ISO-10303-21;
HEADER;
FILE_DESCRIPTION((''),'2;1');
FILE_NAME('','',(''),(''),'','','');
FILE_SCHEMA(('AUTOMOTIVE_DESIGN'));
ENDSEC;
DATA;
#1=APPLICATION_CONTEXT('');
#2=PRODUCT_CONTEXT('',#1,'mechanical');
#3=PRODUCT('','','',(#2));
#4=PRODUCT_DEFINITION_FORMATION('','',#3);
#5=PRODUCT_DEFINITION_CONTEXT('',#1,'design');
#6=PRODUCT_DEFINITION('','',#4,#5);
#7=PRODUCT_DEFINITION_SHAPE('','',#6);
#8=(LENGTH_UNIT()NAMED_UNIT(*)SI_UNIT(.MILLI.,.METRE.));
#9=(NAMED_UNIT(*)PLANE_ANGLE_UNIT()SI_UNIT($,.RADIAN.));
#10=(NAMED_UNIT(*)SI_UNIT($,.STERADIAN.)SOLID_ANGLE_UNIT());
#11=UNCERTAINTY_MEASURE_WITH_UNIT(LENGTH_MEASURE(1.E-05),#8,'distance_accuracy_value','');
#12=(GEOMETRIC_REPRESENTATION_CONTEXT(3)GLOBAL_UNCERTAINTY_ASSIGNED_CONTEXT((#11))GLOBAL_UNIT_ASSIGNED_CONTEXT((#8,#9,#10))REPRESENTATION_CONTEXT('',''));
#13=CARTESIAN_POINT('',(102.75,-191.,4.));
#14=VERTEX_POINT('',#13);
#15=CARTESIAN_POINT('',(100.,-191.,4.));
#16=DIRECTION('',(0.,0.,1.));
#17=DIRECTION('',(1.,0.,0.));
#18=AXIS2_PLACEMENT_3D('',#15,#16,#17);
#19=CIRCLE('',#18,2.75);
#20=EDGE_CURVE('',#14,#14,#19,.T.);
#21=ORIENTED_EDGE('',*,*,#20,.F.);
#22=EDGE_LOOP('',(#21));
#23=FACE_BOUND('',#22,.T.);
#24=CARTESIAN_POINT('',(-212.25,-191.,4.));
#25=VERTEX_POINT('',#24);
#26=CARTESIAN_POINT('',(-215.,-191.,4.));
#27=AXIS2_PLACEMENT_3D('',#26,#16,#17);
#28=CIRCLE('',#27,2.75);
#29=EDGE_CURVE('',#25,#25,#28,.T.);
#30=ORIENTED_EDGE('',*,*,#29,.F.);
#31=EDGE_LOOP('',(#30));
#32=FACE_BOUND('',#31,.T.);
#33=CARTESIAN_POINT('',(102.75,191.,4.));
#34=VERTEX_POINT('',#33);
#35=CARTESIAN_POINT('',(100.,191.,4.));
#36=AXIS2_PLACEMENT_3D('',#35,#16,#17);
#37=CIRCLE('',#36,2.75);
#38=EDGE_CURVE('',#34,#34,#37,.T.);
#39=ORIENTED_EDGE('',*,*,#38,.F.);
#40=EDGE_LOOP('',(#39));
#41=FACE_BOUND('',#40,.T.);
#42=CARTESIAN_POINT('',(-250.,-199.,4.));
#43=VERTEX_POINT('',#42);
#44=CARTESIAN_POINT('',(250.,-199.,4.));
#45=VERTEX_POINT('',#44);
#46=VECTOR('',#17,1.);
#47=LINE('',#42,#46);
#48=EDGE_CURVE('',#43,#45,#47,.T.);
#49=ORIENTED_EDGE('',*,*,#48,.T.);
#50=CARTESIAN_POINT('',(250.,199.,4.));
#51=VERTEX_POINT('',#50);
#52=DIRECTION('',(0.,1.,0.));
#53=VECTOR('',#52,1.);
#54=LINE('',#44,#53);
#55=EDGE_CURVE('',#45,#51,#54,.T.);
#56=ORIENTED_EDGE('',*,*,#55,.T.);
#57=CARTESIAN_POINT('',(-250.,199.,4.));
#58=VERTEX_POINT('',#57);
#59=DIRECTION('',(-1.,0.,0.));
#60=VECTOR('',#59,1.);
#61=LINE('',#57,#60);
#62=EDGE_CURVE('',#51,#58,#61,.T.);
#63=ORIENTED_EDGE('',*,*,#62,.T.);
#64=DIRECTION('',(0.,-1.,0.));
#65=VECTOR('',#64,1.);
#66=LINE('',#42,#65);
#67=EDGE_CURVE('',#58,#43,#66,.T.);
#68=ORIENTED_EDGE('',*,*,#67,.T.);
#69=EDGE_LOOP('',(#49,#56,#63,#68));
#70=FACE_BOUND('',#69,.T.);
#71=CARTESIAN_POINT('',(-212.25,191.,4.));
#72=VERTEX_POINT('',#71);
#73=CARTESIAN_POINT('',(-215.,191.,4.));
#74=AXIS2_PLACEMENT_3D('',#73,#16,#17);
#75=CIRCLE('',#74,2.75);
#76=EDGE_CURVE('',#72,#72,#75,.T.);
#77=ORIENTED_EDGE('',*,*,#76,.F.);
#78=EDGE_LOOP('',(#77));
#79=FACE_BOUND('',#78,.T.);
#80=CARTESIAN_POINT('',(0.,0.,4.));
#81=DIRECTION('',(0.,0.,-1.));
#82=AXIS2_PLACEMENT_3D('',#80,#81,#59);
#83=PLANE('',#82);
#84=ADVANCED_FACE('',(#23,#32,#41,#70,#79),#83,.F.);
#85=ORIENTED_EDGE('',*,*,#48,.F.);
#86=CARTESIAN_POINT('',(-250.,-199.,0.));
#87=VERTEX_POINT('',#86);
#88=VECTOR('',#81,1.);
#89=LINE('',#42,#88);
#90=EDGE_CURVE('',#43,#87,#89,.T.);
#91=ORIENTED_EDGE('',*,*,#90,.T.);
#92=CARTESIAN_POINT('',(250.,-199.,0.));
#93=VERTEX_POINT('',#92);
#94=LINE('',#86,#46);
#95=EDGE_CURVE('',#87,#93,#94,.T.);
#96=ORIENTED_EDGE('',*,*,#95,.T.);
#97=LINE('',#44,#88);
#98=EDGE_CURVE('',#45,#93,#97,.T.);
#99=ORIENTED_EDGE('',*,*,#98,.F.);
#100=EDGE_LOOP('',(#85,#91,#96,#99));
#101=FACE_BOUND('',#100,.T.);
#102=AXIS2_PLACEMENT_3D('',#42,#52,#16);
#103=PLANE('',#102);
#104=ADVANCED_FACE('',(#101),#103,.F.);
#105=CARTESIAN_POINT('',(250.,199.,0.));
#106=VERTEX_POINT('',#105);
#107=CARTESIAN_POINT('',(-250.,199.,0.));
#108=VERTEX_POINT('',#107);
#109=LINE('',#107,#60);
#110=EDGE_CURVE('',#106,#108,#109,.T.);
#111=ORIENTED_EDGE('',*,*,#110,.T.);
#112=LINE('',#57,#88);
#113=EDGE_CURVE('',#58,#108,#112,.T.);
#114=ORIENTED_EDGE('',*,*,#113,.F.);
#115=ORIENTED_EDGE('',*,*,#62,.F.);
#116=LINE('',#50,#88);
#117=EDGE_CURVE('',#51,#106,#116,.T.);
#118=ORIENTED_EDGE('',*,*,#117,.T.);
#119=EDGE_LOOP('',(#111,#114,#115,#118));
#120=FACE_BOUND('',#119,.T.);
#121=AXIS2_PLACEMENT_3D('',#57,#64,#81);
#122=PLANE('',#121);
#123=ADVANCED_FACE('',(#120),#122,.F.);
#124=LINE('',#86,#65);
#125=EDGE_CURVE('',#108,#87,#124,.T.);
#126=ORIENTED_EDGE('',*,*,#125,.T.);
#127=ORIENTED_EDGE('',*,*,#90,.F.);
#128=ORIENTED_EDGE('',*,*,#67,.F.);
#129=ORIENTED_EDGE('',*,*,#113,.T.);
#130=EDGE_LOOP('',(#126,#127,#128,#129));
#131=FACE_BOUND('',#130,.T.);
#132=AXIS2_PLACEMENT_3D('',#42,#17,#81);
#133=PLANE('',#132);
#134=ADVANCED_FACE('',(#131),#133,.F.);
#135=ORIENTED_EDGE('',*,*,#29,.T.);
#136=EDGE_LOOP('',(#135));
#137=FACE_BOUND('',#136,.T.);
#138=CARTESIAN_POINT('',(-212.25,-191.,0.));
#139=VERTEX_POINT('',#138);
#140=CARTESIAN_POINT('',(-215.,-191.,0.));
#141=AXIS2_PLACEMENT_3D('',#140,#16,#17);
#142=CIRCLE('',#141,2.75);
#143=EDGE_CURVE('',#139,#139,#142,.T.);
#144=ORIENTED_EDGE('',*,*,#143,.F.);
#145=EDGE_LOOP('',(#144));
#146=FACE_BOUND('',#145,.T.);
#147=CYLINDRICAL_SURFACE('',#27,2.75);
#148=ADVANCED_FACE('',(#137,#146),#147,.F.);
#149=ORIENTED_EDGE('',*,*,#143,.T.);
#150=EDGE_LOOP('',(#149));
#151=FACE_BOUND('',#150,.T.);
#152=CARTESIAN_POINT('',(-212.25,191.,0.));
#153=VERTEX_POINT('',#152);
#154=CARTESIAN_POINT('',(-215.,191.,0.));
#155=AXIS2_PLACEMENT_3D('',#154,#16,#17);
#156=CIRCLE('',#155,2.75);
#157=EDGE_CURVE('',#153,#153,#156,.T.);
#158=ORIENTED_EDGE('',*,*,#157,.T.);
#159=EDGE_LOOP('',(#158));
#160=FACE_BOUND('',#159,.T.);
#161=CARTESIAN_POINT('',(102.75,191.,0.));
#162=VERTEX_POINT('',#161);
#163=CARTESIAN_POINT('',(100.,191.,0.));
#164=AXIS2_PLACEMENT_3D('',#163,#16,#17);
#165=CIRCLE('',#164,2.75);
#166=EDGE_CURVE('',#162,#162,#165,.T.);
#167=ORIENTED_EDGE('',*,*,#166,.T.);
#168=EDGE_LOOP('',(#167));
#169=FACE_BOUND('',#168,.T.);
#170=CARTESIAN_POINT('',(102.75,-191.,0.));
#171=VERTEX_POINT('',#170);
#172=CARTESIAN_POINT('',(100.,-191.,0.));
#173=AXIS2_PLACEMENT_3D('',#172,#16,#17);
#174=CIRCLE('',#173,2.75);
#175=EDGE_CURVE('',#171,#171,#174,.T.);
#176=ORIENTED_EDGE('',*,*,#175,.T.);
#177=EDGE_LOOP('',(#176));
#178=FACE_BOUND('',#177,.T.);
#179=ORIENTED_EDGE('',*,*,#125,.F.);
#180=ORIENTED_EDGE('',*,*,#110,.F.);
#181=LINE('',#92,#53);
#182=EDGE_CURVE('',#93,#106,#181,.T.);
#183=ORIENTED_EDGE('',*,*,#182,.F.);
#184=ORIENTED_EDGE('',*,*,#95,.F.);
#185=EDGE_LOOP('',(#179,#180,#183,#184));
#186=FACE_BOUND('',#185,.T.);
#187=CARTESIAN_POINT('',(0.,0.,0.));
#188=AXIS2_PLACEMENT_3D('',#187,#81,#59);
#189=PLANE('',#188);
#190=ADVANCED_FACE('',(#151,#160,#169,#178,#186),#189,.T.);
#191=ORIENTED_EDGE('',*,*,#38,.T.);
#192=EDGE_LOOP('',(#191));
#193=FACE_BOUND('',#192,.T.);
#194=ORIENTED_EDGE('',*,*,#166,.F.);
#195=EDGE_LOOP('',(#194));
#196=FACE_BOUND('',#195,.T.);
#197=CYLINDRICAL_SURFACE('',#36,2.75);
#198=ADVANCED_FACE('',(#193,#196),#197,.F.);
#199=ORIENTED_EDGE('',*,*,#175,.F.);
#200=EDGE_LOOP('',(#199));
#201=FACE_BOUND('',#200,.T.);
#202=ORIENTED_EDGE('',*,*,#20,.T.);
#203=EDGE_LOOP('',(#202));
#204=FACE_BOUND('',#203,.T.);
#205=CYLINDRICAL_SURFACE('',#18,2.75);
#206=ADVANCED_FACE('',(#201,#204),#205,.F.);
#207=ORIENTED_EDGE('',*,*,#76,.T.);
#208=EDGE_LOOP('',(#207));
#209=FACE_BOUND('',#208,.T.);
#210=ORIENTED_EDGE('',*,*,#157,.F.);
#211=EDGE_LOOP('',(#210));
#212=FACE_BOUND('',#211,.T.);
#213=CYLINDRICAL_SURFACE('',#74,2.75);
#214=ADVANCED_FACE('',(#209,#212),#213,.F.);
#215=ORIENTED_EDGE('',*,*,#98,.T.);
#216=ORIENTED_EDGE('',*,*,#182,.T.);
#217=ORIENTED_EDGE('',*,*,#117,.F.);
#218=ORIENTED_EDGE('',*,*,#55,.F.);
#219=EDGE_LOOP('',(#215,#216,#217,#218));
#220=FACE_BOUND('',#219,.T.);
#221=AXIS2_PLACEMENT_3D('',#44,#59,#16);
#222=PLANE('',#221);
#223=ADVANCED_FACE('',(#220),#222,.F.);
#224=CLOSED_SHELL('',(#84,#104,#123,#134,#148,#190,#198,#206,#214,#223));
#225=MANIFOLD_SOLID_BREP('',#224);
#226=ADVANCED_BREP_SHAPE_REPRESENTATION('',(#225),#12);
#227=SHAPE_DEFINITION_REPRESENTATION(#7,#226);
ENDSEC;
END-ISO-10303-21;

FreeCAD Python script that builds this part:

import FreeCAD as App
import Part
import Sketcher
from FreeCAD import Vector


def add_polygon(sketch, points):
    """Adds a closed chain of lines whose ends are joined by coincident constraints."""
    first, n = sketch.GeometryCount, len(points)
    for a, b in zip(points, points[1:] + points[:1]):
        sketch.addGeometry(Part.LineSegment(App.Vector(*a, 0), App.Vector(*b, 0)), False)
    for i in range(n):
        sketch.addConstraint(Sketcher.Constraint("Coincident", first + i, 2, first + (i + 1) % n, 1))

doc = App.newDocument("Part")
body = doc.addObject("PartDesign::Body", "Body")

# Sketch on XY plane
sketch1 = body.newObject("Sketcher::SketchObject", "Sketch")
sketch1.AttachmentSupport = (doc.getObject("XY_Plane"), [""])
sketch1.MapMode = "FlatFace"
add_polygon(sketch1, [(-250, 199), (-250, -199), (250, -199), (250, 199)])  # lines 0-3
sketch1.addConstraint(Sketcher.Constraint("Vertical", 0))
sketch1.addConstraint(Sketcher.Constraint("Horizontal", 1))
sketch1.addConstraint(Sketcher.Constraint("Vertical", 2))
sketch1.addConstraint(Sketcher.Constraint("Horizontal", 3))
sketch1.addConstraint(Sketcher.Constraint("Symmetric", 0, 2, 2, 2, -1, 1))
sketch1.addConstraint(Sketcher.Constraint("DistanceX", 1, 1, 1, 2, 500.0))
sketch1.addConstraint(Sketcher.Constraint("DistanceY", 0, 2, 0, 1, 398.0))
pad1 = body.newObject("PartDesign::Pad", "Pad")
pad1.Profile = sketch1
pad1.Length = 4

# Sketch on XY plane
sketch2 = body.newObject("Sketcher::SketchObject", "Sketch001")
sketch2.AttachmentSupport = (doc.getObject("XY_Plane"), [""])
sketch2.MapMode = "FlatFace"
sketch2.AttachmentOffset = App.Placement(Vector(0, 0, 4), App.Rotation())
sketch2.addGeometry(Part.Circle(Vector(-215, 191, 0), Vector(0, 0, 1), 2.75), False)
sketch2.addGeometry(Part.Circle(Vector(100, 191, 0), Vector(0, 0, 1), 2.75), False)
sketch2.addGeometry(Part.Circle(Vector(100, -191, 0), Vector(0, 0, 1), 2.75), False)
sketch2.addGeometry(Part.Circle(Vector(-215, -191, 0), Vector(0, 0, 1), 2.75), False)
sketch2.addConstraint(Sketcher.Constraint("Equal", 0, 1))
sketch2.addConstraint(Sketcher.Constraint("Equal", 1, 2))
sketch2.addConstraint(Sketcher.Constraint("Equal", 2, 3))
sketch2.addConstraint(Sketcher.Constraint("Symmetric", 1, 3, 2, 3, -1))
sketch2.addConstraint(Sketcher.Constraint("Symmetric", 0, 3, 3, 3, -1))
sketch2.addConstraint(Sketcher.Constraint("Horizontal", 0, 3, 1, 3))
sketch2.addConstraint(Sketcher.Constraint("Diameter", 0, 5.5))
sketch2.addConstraint(Sketcher.Constraint("DistanceX", 0, 3, -1, 1, 215.0))
sketch2.addConstraint(Sketcher.Constraint("DistanceY", -1, 1, 0, 3, 191.0))
sketch2.addConstraint(Sketcher.Constraint("DistanceX", -1, 1, 1, 3, 100.0))
doc.recompute()
hole = body.newObject("PartDesign::Hole", "Hole")
hole.Profile = sketch2
hole.ThreadType = "None"
hole.Diameter = 5.5
hole.DepthType = "ThroughAll"

doc.recompute()
